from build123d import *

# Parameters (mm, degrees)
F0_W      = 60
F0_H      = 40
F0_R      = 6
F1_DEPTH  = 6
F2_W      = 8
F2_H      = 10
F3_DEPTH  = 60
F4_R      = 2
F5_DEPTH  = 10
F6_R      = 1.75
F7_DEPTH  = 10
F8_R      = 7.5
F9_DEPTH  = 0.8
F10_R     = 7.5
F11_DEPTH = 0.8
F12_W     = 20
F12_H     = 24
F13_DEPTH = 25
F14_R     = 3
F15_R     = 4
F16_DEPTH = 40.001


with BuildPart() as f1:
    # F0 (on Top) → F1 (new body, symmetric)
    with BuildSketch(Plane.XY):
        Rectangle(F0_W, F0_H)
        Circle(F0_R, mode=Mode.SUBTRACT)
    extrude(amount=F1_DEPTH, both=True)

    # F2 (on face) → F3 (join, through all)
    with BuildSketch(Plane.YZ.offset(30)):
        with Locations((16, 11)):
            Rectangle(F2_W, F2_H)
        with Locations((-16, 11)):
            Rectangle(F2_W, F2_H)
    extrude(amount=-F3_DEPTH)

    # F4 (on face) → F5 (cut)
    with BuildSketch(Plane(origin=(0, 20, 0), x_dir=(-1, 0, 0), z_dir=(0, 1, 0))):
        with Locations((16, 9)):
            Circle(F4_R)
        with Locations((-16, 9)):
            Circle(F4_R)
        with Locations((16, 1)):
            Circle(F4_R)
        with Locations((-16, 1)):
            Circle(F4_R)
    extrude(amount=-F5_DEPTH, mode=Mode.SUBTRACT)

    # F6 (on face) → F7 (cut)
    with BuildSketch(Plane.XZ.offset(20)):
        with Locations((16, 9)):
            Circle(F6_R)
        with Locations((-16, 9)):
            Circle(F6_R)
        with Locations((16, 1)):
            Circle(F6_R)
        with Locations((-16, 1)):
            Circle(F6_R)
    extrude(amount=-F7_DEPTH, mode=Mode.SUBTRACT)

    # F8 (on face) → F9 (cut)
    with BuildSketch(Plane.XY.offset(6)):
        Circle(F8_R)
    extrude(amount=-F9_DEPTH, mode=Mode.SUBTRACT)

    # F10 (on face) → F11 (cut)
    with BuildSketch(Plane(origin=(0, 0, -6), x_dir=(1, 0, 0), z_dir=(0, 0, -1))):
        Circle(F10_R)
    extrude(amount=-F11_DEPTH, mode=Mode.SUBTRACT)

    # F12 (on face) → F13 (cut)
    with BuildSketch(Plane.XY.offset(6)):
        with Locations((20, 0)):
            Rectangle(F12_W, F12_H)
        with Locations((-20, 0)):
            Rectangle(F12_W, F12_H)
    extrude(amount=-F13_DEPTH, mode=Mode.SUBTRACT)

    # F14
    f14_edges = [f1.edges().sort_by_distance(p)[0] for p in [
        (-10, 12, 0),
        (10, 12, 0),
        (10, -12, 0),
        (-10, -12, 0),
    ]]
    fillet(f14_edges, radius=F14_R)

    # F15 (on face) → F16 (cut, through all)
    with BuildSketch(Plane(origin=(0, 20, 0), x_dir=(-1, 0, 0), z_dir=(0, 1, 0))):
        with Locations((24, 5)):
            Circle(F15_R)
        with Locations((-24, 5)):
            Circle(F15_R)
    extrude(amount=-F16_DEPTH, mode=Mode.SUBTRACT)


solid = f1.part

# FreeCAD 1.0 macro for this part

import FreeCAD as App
import Part
import Sketcher
from FreeCAD import Vector
Q = App.Units.Quantity


def edges_at(feature, points):
    """Names of the edges that pass closest to the given points."""
    edges = feature.Shape.Edges
    near = lambda p: min(range(len(edges)), key=lambda i: edges[i].distToShape(Part.Vertex(*p))[0])
    return sorted({f"Edge{near(p) + 1}" for p in points})


def add_polygon(sketch, points):
    """Adds a closed chain of lines whose ends are joined by coincident constraints."""
    first, n = sketch.GeometryCount, len(points)
    for a, b in zip(points, points[1:] + points[:1]):
        sketch.addGeometry(Part.LineSegment(App.Vector(*a, 0), App.Vector(*b, 0)), False)
    for i in range(n):
        sketch.addConstraint(Sketcher.Constraint("Coincident", first + i, 2, first + (i + 1) % n, 1))

doc = App.newDocument("Part")
params = doc.addObject("Spreadsheet::Sheet", "Params")
for row, (alias, value) in enumerate([
    ("sketch1_diameter", "12 mm"),
    ("sketch1_width", "60 mm"),
    ("sketch1_height", "40 mm"),
    ("pad1_length", "12 mm"),
    ("sketch2_width", "8 mm"),
    ("sketch2_height", "10 mm"),
    ("pad2_length", "60 mm"),
    ("sketch3_diameter", "4 mm"),
    ("pocket1_length", "10 mm"),
    ("sketch4_diameter", "3.5 mm"),
    ("pocket2_length", "10 mm"),
    ("sketch5_diameter", "15 mm"),
    ("pocket3_length", "0.8 mm"),
    ("sketch6_diameter", "15 mm"),
    ("pocket4_length", "0.8 mm"),
    ("sketch7_width", "20 mm"),
    ("sketch7_height", "24 mm"),
    ("pocket5_length", "25 mm"),
    ("fillet_radius", "3 mm"),
    ("sketch8_diameter", "8 mm"),
], start=1):
    params.set(f"A{row}", alias)
    params.set(f"B{row}", "=" + value)
    params.setAlias(f"B{row}", alias)

body = doc.addObject("PartDesign::Body", "Body")

# Sketch on XY plane
sketch1 = doc.addObject("Sketcher::SketchObject", "Sketch")
body.addObject(sketch1)
sketch1.AttachmentSupport = (doc.XY_Plane, [""])
sketch1.MapMode = "FlatFace"
add_polygon(sketch1, [(-30, 20), (-30, -20), (30, -20), (30, 20)])  # lines 0-3
sketch1.addGeometry(Part.Circle(Vector(0, 0, 0), Vector(0, 0, 1), 6), False)  # 4
sketch1.addConstraint(Sketcher.Constraint("Vertical", 0))
sketch1.addConstraint(Sketcher.Constraint("Horizontal", 1))
sketch1.addConstraint(Sketcher.Constraint("Vertical", 2))
sketch1.addConstraint(Sketcher.Constraint("Horizontal", 3))
sketch1.addConstraint(Sketcher.Constraint("Coincident", 4, 3, -1, 1))
sketch1.addConstraint(Sketcher.Constraint("Symmetric", 0, 2, 2, 2, -1, 1))
sketch1.addConstraint(Sketcher.Constraint("Diameter", 4, Q("12 mm")))
sketch1.addConstraint(Sketcher.Constraint("DistanceX", 1, 1, 1, 2, Q("60 mm")))
sketch1.addConstraint(Sketcher.Constraint("DistanceY", 0, 2, 0, 1, Q("40 mm")))
sketch1.setExpression("Constraints[10]", "Params.sketch1_diameter")
sketch1.setExpression("Constraints[11]", "Params.sketch1_width")
sketch1.setExpression("Constraints[12]", "Params.sketch1_height")
pad1 = doc.addObject("PartDesign::Pad", "Pad")
body.addObject(pad1)
pad1.Profile = sketch1
pad1.setExpression("Length", "Params.pad1_length")
pad1.Midplane = True

# Sketch on YZ plane
sketch2 = doc.addObject("Sketcher::SketchObject", "Sketch001")
body.addObject(sketch2)
sketch2.AttachmentSupport = (doc.YZ_Plane, [""])
sketch2.MapMode = "FlatFace"
sketch2.AttachmentOffset = App.Placement(Vector(0, 0, 30), App.Rotation())
add_polygon(sketch2, [(12, 16), (12, 6), (20, 6), (20, 16)])  # lines 0-3
add_polygon(sketch2, [(-20, 16), (-20, 6), (-12, 6), (-12, 16)])  # lines 4-7
sketch2.addConstraint(Sketcher.Constraint("Vertical", 0))
sketch2.addConstraint(Sketcher.Constraint("Horizontal", 1))
sketch2.addConstraint(Sketcher.Constraint("Vertical", 2))
sketch2.addConstraint(Sketcher.Constraint("Horizontal", 3))
sketch2.addConstraint(Sketcher.Constraint("Vertical", 4))
sketch2.addConstraint(Sketcher.Constraint("Horizontal", 5))
sketch2.addConstraint(Sketcher.Constraint("Vertical", 6))
sketch2.addConstraint(Sketcher.Constraint("Horizontal", 7))
sketch2.addConstraint(Sketcher.Constraint("Symmetric", 1, 2, 4, 2, -2))
sketch2.addConstraint(Sketcher.Constraint("Symmetric", 3, 2, 6, 2, -2))
sketch2.addConstraint(Sketcher.Constraint("DistanceX", 1, 1, 1, 2, Q("8 mm")))
sketch2.addConstraint(Sketcher.Constraint("DistanceY", 0, 2, 0, 1, Q("10 mm")))
sketch2.addConstraint(Sketcher.Constraint("DistanceX", -1, 1, 0, 2, Q("12 mm")))
sketch2.addConstraint(Sketcher.Constraint("DistanceY", -1, 1, 0, 2, Q("6 mm")))
sketch2.setExpression("Constraints[18]", "Params.sketch2_width")
sketch2.setExpression("Constraints[19]", "Params.sketch2_height")
pad2 = doc.addObject("PartDesign::Pad", "Pad001")
body.addObject(pad2)
pad2.Profile = sketch2
pad2.setExpression("Length", "Params.pad2_length")
pad2.Reversed = True

# Sketch on XZ plane
sketch3 = doc.addObject("Sketcher::SketchObject", "Sketch002")
body.addObject(sketch3)
sketch3.AttachmentSupport = (doc.XZ_Plane, [""])
sketch3.MapMode = "FlatFace"
sketch3.AttachmentOffset = App.Placement(Vector(0, 0, -20), App.Rotation())
sketch3.addGeometry(Part.Circle(Vector(-16, 9, 0), Vector(0, 0, 1), 2), False)
sketch3.addGeometry(Part.Circle(Vector(16, 9, 0), Vector(0, 0, 1), 2), False)
sketch3.addGeometry(Part.Circle(Vector(-16, 1, 0), Vector(0, 0, 1), 2), False)
sketch3.addGeometry(Part.Circle(Vector(16, 1, 0), Vector(0, 0, 1), 2), False)
sketch3.addConstraint(Sketcher.Constraint("Equal", 0, 1))
sketch3.addConstraint(Sketcher.Constraint("Equal", 1, 2))
sketch3.addConstraint(Sketcher.Constraint("Equal", 2, 3))
sketch3.addConstraint(Sketcher.Constraint("Symmetric", 0, 3, 1, 3, -2))
sketch3.addConstraint(Sketcher.Constraint("Symmetric", 2, 3, 3, 3, -2))
sketch3.addConstraint(Sketcher.Constraint("Vertical", 0, 3, 2, 3))
sketch3.addConstraint(Sketcher.Constraint("Diameter", 0, Q("4 mm")))
sketch3.addConstraint(Sketcher.Constraint("DistanceX", 0, 3, -1, 1, Q("16 mm")))
sketch3.addConstraint(Sketcher.Constraint("DistanceY", -1, 1, 0, 3, Q("9 mm")))
sketch3.addConstraint(Sketcher.Constraint("DistanceY", -1, 1, 2, 3, Q("1 mm")))
sketch3.setExpression("Constraints[6]", "Params.sketch3_diameter")
pocket1 = doc.addObject("PartDesign::Pocket", "Pocket")
body.addObject(pocket1)
pocket1.Profile = sketch3
pocket1.setExpression("Length", "Params.pocket1_length")
pocket1.Reversed = True

# Sketch on XZ plane
sketch4 = doc.addObject("Sketcher::SketchObject", "Sketch003")
body.addObject(sketch4)
sketch4.AttachmentSupport = (doc.XZ_Plane, [""])
sketch4.MapMode = "FlatFace"
sketch4.AttachmentOffset = App.Placement(Vector(0, 0, 20), App.Rotation())
sketch4.addGeometry(Part.Circle(Vector(16, 9, 0), Vector(0, 0, 1), 1.8), False)
sketch4.addGeometry(Part.Circle(Vector(-16, 9, 0), Vector(0, 0, 1), 1.8), False)
sketch4.addGeometry(Part.Circle(Vector(16, 1, 0), Vector(0, 0, 1), 1.8), False)
sketch4.addGeometry(Part.Circle(Vector(-16, 1, 0), Vector(0, 0, 1), 1.8), False)
sketch4.addConstraint(Sketcher.Constraint("Equal", 0, 1))
sketch4.addConstraint(Sketcher.Constraint("Equal", 1, 2))
sketch4.addConstraint(Sketcher.Constraint("Equal", 2, 3))
sketch4.addConstraint(Sketcher.Constraint("Symmetric", 0, 3, 1, 3, -2))
sketch4.addConstraint(Sketcher.Constraint("Symmetric", 2, 3, 3, 3, -2))
sketch4.addConstraint(Sketcher.Constraint("Vertical", 0, 3, 2, 3))
sketch4.addConstraint(Sketcher.Constraint("Diameter", 0, Q("3.5 mm")))
sketch4.addConstraint(Sketcher.Constraint("DistanceX", -1, 1, 0, 3, Q("16 mm")))
sketch4.addConstraint(Sketcher.Constraint("DistanceY", -1, 1, 0, 3, Q("9 mm")))
sketch4.addConstraint(Sketcher.Constraint("DistanceY", -1, 1, 2, 3, Q("1 mm")))
sketch4.setExpression("Constraints[6]", "Params.sketch4_diameter")
pocket2 = doc.addObject("PartDesign::Pocket", "Pocket001")
body.addObject(pocket2)
pocket2.Profile = sketch4
pocket2.setExpression("Length", "Params.pocket2_length")

# Sketch on XY plane
sketch5 = doc.addObject("Sketcher::SketchObject", "Sketch004")
body.addObject(sketch5)
sketch5.AttachmentSupport = (doc.XY_Plane, [""])
sketch5.MapMode = "FlatFace"
sketch5.AttachmentOffset = App.Placement(Vector(0, 0, 6), App.Rotation())
sketch5.addGeometry(Part.Circle(Vector(0, 0, 0), Vector(0, 0, 1), 8), False)
sketch5.addConstraint(Sketcher.Constraint("Coincident", 0, 3, -1, 1))
sketch5.addConstraint(Sketcher.Constraint("Diameter", 0, Q("15 mm")))
sketch5.setExpression("Constraints[1]", "Params.sketch5_diameter")
pocket3 = doc.addObject("PartDesign::Pocket", "Pocket002")
body.addObject(pocket3)
pocket3.Profile = sketch5
pocket3.setExpression("Length", "Params.pocket3_length")

# Sketch on XY plane
sketch6 = doc.addObject("Sketcher::SketchObject", "Sketch005")
body.addObject(sketch6)
sketch6.AttachmentSupport = (doc.XY_Plane, [""])
sketch6.MapMode = "FlatFace"
sketch6.AttachmentOffset = App.Placement(Vector(0, 0, -6), App.Rotation())
sketch6.addGeometry(Part.Circle(Vector(0, 0, 0), Vector(0, 0, 1), 8), False)
sketch6.addConstraint(Sketcher.Constraint("Coincident", 0, 3, -1, 1))
sketch6.addConstraint(Sketcher.Constraint("Diameter", 0, Q("15 mm")))
sketch6.setExpression("Constraints[1]", "Params.sketch6_diameter")
pocket4 = doc.addObject("PartDesign::Pocket", "Pocket003")
body.addObject(pocket4)
pocket4.Profile = sketch6
pocket4.setExpression("Length", "Params.pocket4_length")
pocket4.Reversed = True

# Sketch on XY plane
sketch7 = doc.addObject("Sketcher::SketchObject", "Sketch006")
body.addObject(sketch7)
sketch7.AttachmentSupport = (doc.XY_Plane, [""])
sketch7.MapMode = "FlatFace"
sketch7.AttachmentOffset = App.Placement(Vector(0, 0, 6), App.Rotation())
add_polygon(sketch7, [(10, 12), (10, -12), (30, -12), (30, 12)])  # lines 0-3
add_polygon(sketch7, [(-30, 12), (-30, -12), (-10, -12), (-10, 12)])  # lines 4-7
sketch7.addConstraint(Sketcher.Constraint("Vertical", 0))
sketch7.addConstraint(Sketcher.Constraint("Horizontal", 1))
sketch7.addConstraint(Sketcher.Constraint("Vertical", 2))
sketch7.addConstraint(Sketcher.Constraint("Horizontal", 3))
sketch7.addConstraint(Sketcher.Constraint("Vertical", 4))
sketch7.addConstraint(Sketcher.Constraint("Horizontal", 5))
sketch7.addConstraint(Sketcher.Constraint("Vertical", 6))
sketch7.addConstraint(Sketcher.Constraint("Horizontal", 7))
sketch7.addConstraint(Sketcher.Constraint("Symmetric", 2, 2, 4, 2, -1, 1))
sketch7.addConstraint(Sketcher.Constraint("Symmetric", 0, 2, 6, 2, -1, 1))
sketch7.addConstraint(Sketcher.Constraint("Horizontal", 1, 2, 4, 2))
sketch7.addConstraint(Sketcher.Constraint("DistanceX", 1, 1, 1, 2, Q("20 mm")))
sketch7.addConstraint(Sketcher.Constraint("DistanceY", 0, 2, 0, 1, Q("24 mm")))
sketch7.addConstraint(Sketcher.Constraint("DistanceX", -1, 1, 0, 2, Q("10 mm")))
sketch7.setExpression("Constraints[19]", "Params.sketch7_width")
sketch7.setExpression("Constraints[20]", "Params.sketch7_height")
pocket5 = doc.addObject("PartDesign::Pocket", "Pocket004")
body.addObject(pocket5)
pocket5.Profile = sketch7
pocket5.setExpression("Length", "Params.pocket5_length")
doc.recompute()

fillet = doc.addObject("PartDesign::Fillet", "Fillet")
body.addObject(fillet)
fillet.Base = (pocket5, edges_at(pocket5, [
    (-10, 12, 0),
    (10, 12, 0),
    (10, -12, 0),
    (-10, -12, 0),
]))
fillet.setExpression("Radius", "Params.fillet_radius")

# Sketch on XZ plane
sketch8 = doc.addObject("Sketcher::SketchObject", "Sketch007")
body.addObject(sketch8)
sketch8.AttachmentSupport = (doc.XZ_Plane, [""])
sketch8.MapMode = "FlatFace"
sketch8.AttachmentOffset = App.Placement(Vector(0, 0, -20), App.Rotation())
sketch8.addGeometry(Part.Circle(Vector(-24, 5, 0), Vector(0, 0, 1), 4), False)
sketch8.addGeometry(Part.Circle(Vector(24, 5, 0), Vector(0, 0, 1), 4), False)
sketch8.addConstraint(Sketcher.Constraint("Equal", 0, 1))
sketch8.addConstraint(Sketcher.Constraint("Symmetric", 0, 3, 1, 3, -2))
sketch8.addConstraint(Sketcher.Constraint("Diameter", 0, Q("8 mm")))
sketch8.addConstraint(Sketcher.Constraint("DistanceX", 0, 3, -1, 1, Q("24 mm")))
sketch8.addConstraint(Sketcher.Constraint("DistanceY", -1, 1, 0, 3, Q("5 mm")))
sketch8.setExpression("Constraints[2]", "Params.sketch8_diameter")
pocket6 = doc.addObject("PartDesign::Pocket", "Pocket005")
body.addObject(pocket6)
pocket6.Profile = sketch8
pocket6.Type = "ThroughAll"
pocket6.Reversed = True

doc.recompute()
